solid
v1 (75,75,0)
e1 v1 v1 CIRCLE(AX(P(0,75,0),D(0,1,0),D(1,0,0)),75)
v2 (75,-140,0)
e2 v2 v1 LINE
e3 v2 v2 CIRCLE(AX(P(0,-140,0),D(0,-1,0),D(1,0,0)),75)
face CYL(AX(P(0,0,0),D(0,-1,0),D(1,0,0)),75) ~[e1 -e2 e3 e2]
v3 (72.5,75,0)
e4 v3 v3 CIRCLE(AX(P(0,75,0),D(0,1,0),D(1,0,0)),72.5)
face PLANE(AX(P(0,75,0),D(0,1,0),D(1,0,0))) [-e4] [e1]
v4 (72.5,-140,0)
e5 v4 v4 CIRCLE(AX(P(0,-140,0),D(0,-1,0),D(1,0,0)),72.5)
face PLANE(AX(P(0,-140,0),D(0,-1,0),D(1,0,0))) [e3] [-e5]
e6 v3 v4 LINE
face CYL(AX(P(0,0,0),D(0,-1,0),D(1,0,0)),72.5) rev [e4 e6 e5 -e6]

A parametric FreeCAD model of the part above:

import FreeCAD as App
import Part
import Sketcher

V = App.Vector
Q = App.Units.Quantity

doc = App.newDocument("Part")
body = doc.addObject("PartDesign::Body", "Body")

# Sketch on XZ plane
sketch1 = doc.addObject("Sketcher::SketchObject", "Sketch")
body.addObject(sketch1)
sketch1.AttachmentSupport = (doc.XZ_Plane, [""])
sketch1.MapMode = "FlatFace"
sketch1.addGeometry(Part.Circle(V(0, 0, 0), V(0, 0, 1), 75), False)
sketch1.addGeometry(Part.Circle(V(0, 0, 0), V(0, 0, 1), 72), False)
sketch1.addConstraint(Sketcher.Constraint("Coincident", 0, 3, -1, 1))
sketch1.addConstraint(Sketcher.Constraint("Coincident", 1, 3, -1, 1))
sketch1.addConstraint(Sketcher.Constraint("Diameter", 0, Q("150 mm")))
sketch1.addConstraint(Sketcher.Constraint("Diameter", 1, Q("145 mm")))
pad1 = doc.addObject("PartDesign::Pad", "Pad")
body.addObject(pad1)
pad1.Profile = sketch1
pad1.Length = 140

# Sketch on XZ plane
sketch2 = doc.addObject("Sketcher::SketchObject", "Sketch001")
body.addObject(sketch2)
sketch2.AttachmentSupport = (doc.XZ_Plane, [""])
sketch2.MapMode = "FlatFace"
sketch2.addGeometry(Part.Circle(V(0, 0, 0), V(0, 0, 1), 75), False)
sketch2.addGeometry(Part.Circle(V(0, 0, 0), V(0, 0, 1), 72), False)
sketch2.addConstraint(Sketcher.Constraint("Coincident", 0, 3, -1, 1))
sketch2.addConstraint(Sketcher.Constraint("Coincident", 1, 3, -1, 1))
sketch2.addConstraint(Sketcher.Constraint("Diameter", 0, Q("150 mm")))
sketch2.addConstraint(Sketcher.Constraint("Diameter", 1, Q("145 mm")))
pad2 = doc.addObject("PartDesign::Pad", "Pad001")
body.addObject(pad2)
pad2.Profile = sketch2
pad2.Length = 75
pad2.Reversed = True

doc.recompute()
